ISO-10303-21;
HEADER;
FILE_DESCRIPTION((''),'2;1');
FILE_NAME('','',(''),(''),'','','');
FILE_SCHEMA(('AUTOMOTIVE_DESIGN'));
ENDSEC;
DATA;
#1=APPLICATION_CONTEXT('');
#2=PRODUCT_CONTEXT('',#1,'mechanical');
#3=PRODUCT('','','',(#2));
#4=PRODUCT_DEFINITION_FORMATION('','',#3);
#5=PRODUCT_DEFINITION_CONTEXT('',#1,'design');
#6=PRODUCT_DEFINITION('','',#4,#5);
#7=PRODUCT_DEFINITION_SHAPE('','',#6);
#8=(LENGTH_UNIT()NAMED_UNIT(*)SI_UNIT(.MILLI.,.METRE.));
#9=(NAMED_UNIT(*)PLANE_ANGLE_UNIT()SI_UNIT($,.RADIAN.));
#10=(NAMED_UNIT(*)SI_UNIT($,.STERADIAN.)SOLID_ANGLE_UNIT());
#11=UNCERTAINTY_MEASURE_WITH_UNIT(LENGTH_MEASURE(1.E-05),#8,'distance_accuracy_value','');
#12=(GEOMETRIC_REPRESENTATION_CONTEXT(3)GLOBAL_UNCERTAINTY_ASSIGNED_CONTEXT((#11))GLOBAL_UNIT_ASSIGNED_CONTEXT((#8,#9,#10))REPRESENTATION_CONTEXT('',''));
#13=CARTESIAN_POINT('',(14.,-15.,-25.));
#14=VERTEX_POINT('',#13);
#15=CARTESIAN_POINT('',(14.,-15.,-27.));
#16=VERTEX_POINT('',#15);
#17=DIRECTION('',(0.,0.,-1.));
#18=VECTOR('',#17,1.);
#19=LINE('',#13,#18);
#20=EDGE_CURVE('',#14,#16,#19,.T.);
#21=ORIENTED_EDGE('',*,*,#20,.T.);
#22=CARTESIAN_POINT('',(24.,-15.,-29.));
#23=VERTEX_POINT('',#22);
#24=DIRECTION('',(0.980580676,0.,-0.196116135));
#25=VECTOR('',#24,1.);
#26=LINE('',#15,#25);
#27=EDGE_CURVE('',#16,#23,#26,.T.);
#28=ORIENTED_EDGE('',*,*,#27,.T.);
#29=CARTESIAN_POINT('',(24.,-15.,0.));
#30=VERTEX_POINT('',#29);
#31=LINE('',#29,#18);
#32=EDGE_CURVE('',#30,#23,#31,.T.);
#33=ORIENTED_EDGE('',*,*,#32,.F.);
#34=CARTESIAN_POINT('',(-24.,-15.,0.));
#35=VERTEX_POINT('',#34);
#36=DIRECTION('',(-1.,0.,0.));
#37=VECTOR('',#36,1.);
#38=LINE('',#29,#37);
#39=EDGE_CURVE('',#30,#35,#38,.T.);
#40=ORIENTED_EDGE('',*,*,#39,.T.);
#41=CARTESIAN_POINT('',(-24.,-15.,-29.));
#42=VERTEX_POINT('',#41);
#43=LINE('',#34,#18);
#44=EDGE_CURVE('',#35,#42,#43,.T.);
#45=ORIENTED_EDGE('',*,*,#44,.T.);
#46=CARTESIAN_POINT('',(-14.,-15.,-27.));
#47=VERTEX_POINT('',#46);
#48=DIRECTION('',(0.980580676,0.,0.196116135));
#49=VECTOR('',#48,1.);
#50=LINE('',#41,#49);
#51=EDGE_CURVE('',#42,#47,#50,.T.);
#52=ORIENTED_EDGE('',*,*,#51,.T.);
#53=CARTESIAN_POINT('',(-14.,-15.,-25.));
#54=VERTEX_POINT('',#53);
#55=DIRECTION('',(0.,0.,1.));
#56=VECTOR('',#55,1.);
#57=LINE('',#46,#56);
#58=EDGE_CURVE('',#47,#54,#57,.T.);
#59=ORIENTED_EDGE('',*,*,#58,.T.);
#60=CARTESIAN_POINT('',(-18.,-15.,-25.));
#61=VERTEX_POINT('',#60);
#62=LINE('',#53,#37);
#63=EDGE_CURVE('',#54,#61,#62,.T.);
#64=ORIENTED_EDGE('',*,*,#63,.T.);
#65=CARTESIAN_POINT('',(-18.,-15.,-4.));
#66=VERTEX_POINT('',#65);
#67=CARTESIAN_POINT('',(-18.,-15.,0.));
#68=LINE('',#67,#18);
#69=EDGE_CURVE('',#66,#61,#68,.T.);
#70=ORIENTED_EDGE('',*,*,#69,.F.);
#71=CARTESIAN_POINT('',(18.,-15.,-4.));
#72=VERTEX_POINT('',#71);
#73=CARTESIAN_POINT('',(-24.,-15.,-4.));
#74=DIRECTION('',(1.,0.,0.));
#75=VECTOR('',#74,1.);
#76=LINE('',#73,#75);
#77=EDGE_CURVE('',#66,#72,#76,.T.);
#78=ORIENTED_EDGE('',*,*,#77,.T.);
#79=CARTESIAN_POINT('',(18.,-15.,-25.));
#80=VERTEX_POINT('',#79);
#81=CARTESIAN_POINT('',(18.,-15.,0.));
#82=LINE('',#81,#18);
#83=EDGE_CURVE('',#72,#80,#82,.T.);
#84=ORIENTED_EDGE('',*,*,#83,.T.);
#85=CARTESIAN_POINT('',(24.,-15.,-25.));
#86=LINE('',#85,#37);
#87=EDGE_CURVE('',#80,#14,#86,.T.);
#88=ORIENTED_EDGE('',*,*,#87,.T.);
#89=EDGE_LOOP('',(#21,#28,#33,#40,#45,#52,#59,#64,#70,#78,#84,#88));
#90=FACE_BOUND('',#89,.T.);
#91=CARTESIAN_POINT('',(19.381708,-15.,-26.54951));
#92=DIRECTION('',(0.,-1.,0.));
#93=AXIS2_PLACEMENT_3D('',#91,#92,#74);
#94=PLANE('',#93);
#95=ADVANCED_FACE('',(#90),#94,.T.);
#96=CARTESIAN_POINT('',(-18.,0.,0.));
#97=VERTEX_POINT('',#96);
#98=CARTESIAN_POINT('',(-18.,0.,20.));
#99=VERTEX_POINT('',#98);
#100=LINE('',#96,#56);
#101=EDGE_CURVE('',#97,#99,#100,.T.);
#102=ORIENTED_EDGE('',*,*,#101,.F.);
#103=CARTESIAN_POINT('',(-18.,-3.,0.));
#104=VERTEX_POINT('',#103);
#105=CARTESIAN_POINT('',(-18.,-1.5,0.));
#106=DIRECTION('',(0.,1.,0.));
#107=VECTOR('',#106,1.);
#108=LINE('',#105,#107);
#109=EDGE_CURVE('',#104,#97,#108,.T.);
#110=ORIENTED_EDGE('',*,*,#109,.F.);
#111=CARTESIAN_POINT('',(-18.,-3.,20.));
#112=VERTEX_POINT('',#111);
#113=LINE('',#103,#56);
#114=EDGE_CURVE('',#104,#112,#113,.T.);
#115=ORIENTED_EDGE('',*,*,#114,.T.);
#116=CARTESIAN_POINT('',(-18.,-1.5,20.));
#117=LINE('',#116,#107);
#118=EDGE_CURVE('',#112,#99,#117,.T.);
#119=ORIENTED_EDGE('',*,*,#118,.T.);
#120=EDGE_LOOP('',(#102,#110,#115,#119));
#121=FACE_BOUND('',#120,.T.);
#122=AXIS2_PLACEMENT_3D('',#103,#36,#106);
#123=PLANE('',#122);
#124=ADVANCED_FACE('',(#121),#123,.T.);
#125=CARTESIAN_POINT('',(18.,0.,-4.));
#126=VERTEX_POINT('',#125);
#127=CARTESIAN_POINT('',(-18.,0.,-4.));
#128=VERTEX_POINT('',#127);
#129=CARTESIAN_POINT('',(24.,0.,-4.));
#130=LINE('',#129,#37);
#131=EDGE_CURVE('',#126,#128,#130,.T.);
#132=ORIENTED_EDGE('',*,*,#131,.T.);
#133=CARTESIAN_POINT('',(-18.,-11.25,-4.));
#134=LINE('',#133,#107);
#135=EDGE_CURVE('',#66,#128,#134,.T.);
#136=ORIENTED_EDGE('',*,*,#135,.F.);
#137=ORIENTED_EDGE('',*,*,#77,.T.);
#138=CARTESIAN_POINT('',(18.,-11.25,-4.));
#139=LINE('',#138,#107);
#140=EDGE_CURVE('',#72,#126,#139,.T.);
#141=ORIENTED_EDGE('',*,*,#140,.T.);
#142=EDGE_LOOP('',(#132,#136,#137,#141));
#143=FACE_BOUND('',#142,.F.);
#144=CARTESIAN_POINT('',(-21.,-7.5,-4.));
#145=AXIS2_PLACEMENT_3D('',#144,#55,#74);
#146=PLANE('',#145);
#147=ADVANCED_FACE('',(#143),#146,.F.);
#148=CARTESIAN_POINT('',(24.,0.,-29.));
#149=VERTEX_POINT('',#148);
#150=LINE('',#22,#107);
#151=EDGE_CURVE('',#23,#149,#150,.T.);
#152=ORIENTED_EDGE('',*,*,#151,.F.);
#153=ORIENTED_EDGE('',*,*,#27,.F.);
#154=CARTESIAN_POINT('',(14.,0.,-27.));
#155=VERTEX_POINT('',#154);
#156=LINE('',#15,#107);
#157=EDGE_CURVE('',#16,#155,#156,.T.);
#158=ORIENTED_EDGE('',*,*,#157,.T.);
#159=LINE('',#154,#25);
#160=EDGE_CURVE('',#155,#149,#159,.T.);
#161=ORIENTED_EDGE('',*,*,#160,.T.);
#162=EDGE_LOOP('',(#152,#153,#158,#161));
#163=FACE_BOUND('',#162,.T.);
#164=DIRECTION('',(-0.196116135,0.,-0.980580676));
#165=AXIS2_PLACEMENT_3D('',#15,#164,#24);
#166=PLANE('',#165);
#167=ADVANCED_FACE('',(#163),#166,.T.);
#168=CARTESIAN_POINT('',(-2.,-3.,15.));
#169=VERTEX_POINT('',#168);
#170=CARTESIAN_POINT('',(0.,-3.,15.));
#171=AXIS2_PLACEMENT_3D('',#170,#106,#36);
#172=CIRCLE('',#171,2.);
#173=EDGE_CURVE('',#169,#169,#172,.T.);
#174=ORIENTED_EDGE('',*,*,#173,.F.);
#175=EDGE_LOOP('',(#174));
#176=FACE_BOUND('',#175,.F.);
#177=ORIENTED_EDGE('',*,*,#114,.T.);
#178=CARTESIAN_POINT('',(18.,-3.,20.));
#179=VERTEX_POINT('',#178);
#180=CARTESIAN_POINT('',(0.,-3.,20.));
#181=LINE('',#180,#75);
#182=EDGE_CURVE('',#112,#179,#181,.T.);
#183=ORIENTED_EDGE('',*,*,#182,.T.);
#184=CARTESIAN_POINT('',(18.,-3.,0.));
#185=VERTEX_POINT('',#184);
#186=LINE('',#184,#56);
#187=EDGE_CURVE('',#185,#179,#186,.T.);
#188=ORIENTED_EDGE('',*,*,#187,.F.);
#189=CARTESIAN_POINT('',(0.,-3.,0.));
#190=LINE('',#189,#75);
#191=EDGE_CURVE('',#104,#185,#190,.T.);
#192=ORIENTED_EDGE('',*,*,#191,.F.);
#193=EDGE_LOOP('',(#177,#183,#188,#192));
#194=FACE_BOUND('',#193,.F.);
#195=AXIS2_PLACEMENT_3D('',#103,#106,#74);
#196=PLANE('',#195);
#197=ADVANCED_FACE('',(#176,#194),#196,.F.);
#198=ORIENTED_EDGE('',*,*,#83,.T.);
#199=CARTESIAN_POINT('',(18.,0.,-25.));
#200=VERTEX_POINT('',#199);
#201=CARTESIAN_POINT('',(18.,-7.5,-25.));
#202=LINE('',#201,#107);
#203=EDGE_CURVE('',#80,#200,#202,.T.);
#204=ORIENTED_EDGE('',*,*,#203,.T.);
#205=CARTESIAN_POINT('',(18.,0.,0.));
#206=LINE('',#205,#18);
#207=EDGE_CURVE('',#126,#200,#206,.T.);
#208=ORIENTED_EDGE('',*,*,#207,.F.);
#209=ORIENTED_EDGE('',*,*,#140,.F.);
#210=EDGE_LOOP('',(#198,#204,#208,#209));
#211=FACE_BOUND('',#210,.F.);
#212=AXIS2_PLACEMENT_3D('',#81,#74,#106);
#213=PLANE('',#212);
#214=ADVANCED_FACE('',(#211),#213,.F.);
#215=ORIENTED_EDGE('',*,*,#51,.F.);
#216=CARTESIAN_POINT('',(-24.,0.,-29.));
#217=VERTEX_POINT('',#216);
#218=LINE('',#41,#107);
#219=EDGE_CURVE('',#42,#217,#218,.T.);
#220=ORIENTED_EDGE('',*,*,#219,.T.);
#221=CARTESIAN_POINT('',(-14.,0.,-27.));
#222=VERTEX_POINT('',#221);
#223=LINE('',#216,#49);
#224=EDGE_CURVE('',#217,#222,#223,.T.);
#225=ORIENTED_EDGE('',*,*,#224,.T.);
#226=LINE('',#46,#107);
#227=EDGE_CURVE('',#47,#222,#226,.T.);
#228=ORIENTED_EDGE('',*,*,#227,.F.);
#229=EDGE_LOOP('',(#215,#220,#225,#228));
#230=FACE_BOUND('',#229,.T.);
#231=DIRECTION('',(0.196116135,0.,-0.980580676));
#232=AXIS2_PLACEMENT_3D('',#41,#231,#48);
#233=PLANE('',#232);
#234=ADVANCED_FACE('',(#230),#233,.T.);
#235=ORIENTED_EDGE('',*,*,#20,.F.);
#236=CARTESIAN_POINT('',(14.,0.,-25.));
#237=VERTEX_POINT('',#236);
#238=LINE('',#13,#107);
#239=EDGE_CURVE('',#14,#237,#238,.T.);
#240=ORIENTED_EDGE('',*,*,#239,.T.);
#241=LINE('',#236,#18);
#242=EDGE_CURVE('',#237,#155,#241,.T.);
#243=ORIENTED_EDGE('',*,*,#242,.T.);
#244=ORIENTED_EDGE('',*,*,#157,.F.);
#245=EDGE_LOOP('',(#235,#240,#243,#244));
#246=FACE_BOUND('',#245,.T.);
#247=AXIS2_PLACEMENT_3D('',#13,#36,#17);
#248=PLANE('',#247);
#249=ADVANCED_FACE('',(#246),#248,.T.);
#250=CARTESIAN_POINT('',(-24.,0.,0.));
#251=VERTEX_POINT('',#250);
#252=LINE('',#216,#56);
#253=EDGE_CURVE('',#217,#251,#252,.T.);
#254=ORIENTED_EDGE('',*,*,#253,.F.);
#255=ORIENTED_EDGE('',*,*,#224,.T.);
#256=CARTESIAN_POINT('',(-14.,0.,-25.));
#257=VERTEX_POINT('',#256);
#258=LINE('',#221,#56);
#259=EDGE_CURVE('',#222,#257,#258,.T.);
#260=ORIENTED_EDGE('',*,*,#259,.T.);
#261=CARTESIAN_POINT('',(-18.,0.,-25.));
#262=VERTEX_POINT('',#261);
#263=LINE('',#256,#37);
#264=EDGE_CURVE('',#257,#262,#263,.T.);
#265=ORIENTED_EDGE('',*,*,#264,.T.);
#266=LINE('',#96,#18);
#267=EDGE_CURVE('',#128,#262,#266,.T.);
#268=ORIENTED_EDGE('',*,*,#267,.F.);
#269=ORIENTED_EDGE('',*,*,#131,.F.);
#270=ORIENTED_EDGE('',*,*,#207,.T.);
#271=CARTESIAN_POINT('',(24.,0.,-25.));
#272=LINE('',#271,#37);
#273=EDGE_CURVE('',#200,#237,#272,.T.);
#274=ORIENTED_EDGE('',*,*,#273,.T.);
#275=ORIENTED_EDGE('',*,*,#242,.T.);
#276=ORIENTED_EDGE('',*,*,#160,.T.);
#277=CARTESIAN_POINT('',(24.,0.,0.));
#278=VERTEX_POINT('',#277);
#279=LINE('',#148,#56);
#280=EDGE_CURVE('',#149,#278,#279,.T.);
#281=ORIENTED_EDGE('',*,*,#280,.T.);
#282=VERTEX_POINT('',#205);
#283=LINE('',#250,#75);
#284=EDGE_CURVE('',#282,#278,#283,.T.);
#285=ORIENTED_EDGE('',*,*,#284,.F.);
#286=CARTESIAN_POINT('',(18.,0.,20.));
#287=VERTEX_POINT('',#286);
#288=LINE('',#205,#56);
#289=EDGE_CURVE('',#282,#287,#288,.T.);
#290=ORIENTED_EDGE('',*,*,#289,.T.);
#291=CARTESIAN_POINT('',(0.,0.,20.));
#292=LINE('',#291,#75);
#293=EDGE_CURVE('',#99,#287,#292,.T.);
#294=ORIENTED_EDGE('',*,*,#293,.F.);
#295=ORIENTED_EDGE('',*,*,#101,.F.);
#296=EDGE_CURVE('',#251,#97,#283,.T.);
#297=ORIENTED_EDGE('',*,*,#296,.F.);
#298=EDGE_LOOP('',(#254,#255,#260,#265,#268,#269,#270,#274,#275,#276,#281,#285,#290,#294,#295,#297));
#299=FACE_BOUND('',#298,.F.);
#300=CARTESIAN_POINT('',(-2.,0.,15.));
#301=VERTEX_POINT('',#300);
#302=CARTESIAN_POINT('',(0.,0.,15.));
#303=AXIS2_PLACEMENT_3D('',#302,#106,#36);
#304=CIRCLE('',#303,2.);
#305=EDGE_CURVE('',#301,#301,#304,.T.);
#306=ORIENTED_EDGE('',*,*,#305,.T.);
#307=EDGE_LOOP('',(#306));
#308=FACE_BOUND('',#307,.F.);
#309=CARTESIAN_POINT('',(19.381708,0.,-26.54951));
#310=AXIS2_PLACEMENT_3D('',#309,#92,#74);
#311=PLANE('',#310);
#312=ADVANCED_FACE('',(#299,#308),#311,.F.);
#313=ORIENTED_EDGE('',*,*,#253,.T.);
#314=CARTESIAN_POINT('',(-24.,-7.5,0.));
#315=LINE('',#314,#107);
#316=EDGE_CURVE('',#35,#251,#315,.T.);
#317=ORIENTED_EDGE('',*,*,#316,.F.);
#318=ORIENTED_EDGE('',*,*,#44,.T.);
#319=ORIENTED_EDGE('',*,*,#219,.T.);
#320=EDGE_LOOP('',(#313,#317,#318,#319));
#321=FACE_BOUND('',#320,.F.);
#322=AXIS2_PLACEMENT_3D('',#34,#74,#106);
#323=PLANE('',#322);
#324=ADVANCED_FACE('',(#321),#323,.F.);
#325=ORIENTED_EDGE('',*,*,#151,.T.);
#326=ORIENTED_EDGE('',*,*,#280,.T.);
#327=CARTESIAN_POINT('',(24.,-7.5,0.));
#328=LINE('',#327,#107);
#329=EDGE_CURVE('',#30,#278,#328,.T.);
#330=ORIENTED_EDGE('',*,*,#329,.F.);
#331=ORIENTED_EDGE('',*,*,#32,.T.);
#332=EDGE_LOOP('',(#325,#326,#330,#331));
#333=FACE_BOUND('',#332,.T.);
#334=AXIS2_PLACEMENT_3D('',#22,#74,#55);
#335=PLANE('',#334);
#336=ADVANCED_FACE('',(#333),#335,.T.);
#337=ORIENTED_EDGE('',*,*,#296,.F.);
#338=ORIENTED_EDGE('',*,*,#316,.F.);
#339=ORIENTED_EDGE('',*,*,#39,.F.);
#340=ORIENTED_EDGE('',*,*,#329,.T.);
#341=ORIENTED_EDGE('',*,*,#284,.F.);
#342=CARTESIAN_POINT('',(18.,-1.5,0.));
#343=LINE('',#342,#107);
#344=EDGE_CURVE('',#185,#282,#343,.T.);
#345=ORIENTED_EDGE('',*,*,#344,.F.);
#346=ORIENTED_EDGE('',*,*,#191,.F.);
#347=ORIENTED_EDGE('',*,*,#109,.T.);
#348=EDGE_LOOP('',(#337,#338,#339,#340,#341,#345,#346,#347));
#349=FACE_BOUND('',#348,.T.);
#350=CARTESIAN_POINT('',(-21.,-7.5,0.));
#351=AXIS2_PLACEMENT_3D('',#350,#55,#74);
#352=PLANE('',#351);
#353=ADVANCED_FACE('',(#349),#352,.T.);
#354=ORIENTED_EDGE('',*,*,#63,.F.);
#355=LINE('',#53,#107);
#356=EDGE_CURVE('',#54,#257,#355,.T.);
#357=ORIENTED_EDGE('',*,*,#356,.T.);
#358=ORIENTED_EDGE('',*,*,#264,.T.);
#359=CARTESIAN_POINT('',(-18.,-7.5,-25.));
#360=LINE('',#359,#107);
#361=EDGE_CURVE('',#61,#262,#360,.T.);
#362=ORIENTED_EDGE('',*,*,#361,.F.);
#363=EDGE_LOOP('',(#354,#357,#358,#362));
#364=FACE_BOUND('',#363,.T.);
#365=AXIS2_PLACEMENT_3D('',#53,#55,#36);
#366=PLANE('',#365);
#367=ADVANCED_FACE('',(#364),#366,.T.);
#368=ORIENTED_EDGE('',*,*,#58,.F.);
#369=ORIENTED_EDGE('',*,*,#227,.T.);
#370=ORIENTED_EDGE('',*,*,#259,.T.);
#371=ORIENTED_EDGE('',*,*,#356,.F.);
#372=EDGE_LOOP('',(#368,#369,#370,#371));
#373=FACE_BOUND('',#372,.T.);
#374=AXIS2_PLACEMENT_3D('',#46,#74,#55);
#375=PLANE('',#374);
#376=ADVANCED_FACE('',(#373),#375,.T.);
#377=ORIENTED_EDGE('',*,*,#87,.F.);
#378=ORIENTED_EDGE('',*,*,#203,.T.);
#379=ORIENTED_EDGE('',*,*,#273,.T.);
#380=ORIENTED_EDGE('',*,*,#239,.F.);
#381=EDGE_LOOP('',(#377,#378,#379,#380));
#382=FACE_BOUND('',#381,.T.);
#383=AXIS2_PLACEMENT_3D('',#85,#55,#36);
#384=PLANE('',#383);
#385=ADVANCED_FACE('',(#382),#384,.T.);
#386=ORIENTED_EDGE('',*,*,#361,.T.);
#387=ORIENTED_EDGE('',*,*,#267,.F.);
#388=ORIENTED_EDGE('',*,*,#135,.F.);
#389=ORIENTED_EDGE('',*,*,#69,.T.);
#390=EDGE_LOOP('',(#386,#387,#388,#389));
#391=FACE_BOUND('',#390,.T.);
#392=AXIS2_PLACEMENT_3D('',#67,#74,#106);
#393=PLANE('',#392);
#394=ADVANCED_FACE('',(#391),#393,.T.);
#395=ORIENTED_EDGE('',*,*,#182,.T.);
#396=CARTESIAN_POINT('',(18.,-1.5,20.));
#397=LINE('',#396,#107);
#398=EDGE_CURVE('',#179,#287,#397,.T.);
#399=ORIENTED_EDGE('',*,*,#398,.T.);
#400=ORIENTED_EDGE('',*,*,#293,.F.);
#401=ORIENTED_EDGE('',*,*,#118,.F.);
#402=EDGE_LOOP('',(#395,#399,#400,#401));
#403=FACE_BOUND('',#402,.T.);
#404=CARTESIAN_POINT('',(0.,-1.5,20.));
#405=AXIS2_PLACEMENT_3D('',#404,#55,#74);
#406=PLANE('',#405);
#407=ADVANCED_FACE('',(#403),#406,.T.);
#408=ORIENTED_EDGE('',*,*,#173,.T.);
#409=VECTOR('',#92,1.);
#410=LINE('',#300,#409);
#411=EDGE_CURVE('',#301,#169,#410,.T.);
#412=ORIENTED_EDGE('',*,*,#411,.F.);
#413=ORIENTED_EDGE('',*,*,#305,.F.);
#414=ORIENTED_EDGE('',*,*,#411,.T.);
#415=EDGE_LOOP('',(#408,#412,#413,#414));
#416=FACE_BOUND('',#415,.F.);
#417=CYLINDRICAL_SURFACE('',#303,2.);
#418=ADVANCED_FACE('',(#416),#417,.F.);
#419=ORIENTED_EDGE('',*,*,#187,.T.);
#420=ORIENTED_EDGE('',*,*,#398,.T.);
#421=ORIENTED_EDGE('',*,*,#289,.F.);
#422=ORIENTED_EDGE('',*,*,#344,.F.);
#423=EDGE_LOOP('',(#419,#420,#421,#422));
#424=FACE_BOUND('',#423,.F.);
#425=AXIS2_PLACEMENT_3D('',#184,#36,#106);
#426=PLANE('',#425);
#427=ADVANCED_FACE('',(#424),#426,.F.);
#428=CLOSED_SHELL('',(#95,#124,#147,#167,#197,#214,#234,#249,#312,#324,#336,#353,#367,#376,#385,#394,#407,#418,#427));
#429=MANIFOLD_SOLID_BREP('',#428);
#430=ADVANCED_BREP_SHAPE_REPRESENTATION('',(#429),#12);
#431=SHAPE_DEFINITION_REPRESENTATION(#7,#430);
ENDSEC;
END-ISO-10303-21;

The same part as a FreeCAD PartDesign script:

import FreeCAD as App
import Part
import Sketcher

V = App.Vector

doc = App.newDocument("Part")
body = doc.addObject("PartDesign::Body", "Body")

# Sketch on XY plane
sketch1 = doc.addObject("Sketcher::SketchObject", "Sketch")
body.addObject(sketch1)
sketch1.AttachmentSupport = (doc.XY_Plane, [""])
sketch1.MapMode = "FlatFace"
sketch1.addGeometry([
    Part.LineSegment(V(-24, 0, 0), V(-24, -15, 0)),
    Part.LineSegment(V(-24, -15, 0), V(24, -15, 0)),
    Part.LineSegment(V(24, -15, 0), V(24, 0, 0)),
    Part.LineSegment(V(24, 0, 0), V(-24, 0, 0)),
], False)
sketch1.addConstraint([
    Sketcher.Constraint("Coincident", 0, 2, 1, 1),
    Sketcher.Constraint("Coincident", 1, 2, 2, 1),
    Sketcher.Constraint("Coincident", 2, 2, 3, 1),
    Sketcher.Constraint("Coincident", 3, 2, 0, 1),
    Sketcher.Constraint("Vertical", 0),
    Sketcher.Constraint("Horizontal", 1),
    Sketcher.Constraint("Vertical", 2),
    Sketcher.Constraint("Horizontal", 3),
    Sketcher.Constraint("Symmetric", 2, 2, 3, 2, -1, 1),
    Sketcher.Constraint("DistanceX", 1, 1, 1, 2, 48.0),
    Sketcher.Constraint("DistanceY", 0, 2, 0, 1, 15.0),
])
pad1 = doc.addObject("PartDesign::Pad", "Pad")
body.addObject(pad1)
pad1.Profile = sketch1
pad1.Length = 4
pad1.Reversed = True

# Sketch on XY plane
sketch2 = doc.addObject("Sketcher::SketchObject", "Sketch001")
body.addObject(sketch2)
sketch2.AttachmentSupport = (doc.XY_Plane, [""])
sketch2.MapMode = "FlatFace"
sketch2.addGeometry([
    Part.LineSegment(V(-24, 0, 0), V(-24, -15, 0)),  # 0
    Part.LineSegment(V(-24, -15, 0), V(-18, -15, 0)),  # 1
    Part.LineSegment(V(-18, -15, 0), V(-18, 0, 0)),  # 2
    Part.LineSegment(V(-18, 0, 0), V(-24, 0, 0)),  # 3
    Part.LineSegment(V(18, 0, 0), V(18, -15, 0)),  # 4
    Part.LineSegment(V(18, -15, 0), V(24, -15, 0)),  # 5
    Part.LineSegment(V(24, -15, 0), V(24, 0, 0)),  # 6
    Part.LineSegment(V(24, 0, 0), V(18, 0, 0)),  # 7
], False)
sketch2.addConstraint([
    Sketcher.Constraint("Coincident", 0, 2, 1, 1),
    Sketcher.Constraint("Coincident", 1, 2, 2, 1),
    Sketcher.Constraint("Coincident", 2, 2, 3, 1),
    Sketcher.Constraint("Coincident", 3, 2, 0, 1),
    Sketcher.Constraint("Coincident", 4, 2, 5, 1),
    Sketcher.Constraint("Coincident", 5, 2, 6, 1),
    Sketcher.Constraint("Coincident", 6, 2, 7, 1),
    Sketcher.Constraint("Coincident", 7, 2, 4, 1),
    Sketcher.Constraint("Vertical", 0),
    Sketcher.Constraint("Horizontal", 1),
    Sketcher.Constraint("Vertical", 2),
    Sketcher.Constraint("Horizontal", 3),
    Sketcher.Constraint("Vertical", 4),
    Sketcher.Constraint("Horizontal", 5),
    Sketcher.Constraint("Vertical", 6),
    Sketcher.Constraint("Horizontal", 7),
    Sketcher.Constraint("Symmetric", 3, 2, 6, 2, -1, 1),
    Sketcher.Constraint("Symmetric", 1, 2, 4, 2, -2),
    Sketcher.Constraint("PointOnObject", 2, 2, -1),
    Sketcher.Constraint("DistanceX", 1, 1, 1, 2, 6.0),
    Sketcher.Constraint("DistanceY", 0, 2, 0, 1, 15.0),
    Sketcher.Constraint("DistanceX", 0, 2, -1, 1, 24.0),
])
pad2 = doc.addObject("PartDesign::Pad", "Pad001")
body.addObject(pad2)
pad2.Profile = sketch2
pad2.Length = 25
pad2.Reversed = True

# Sketch on XZ plane
sketch3 = doc.addObject("Sketcher::SketchObject", "Sketch002")
body.addObject(sketch3)
sketch3.AttachmentSupport = (doc.XZ_Plane, [""])
sketch3.MapMode = "FlatFace"
sketch3.AttachmentOffset = App.Placement(V(0, 0, 15), App.Rotation())
sketch3.addGeometry([
    Part.LineSegment(V(24, -29, 0), V(24, -25, 0)),  # 0
    Part.LineSegment(V(24, -25, 0), V(14, -25, 0)),  # 1
    Part.LineSegment(V(14, -25, 0), V(14, -27, 0)),  # 2
    Part.LineSegment(V(14, -27, 0), V(24, -29, 0)),  # 3
    Part.LineSegment(V(-24, -25, 0), V(-24, -29, 0)),  # 4
    Part.LineSegment(V(-24, -29, 0), V(-14, -27, 0)),  # 5
    Part.LineSegment(V(-14, -27, 0), V(-14, -25, 0)),  # 6
    Part.LineSegment(V(-14, -25, 0), V(-24, -25, 0)),  # 7
], False)
sketch3.addConstraint([
    Sketcher.Constraint("Coincident", 0, 2, 1, 1),
    Sketcher.Constraint("Coincident", 1, 2, 2, 1),
    Sketcher.Constraint("Coincident", 2, 2, 3, 1),
    Sketcher.Constraint("Coincident", 3, 2, 0, 1),
    Sketcher.Constraint("Coincident", 4, 2, 5, 1),
    Sketcher.Constraint("Coincident", 5, 2, 6, 1),
    Sketcher.Constraint("Coincident", 6, 2, 7, 1),
    Sketcher.Constraint("Coincident", 7, 2, 4, 1),
    Sketcher.Constraint("Vertical", 0),
    Sketcher.Constraint("Horizontal", 1),
    Sketcher.Constraint("Vertical", 2),
    Sketcher.Constraint("Vertical", 4),
    Sketcher.Constraint("Vertical", 6),
    Sketcher.Constraint("Horizontal", 7),
    Sketcher.Constraint("Symmetric", 3, 2, 4, 2, -2),
    Sketcher.Constraint("Symmetric", 2, 2, 5, 2, -2),
    Sketcher.Constraint("Horizontal", 1, 2, 6, 2),
    Sketcher.Constraint("DistanceX", 1, 2, 1, 1, 10.0),
    Sketcher.Constraint("DistanceY", 0, 1, 0, 2, 4.0),
    Sketcher.Constraint("DistanceY", 2, 2, 2, 1, 2.0),
    Sketcher.Constraint("DistanceX", -1, 1, 0, 2, 24.0),
    Sketcher.Constraint("DistanceY", 0, 2, -1, 1, 25.0),
])
pad3 = doc.addObject("PartDesign::Pad", "Pad002")
body.addObject(pad3)
pad3.Profile = sketch3
pad3.Length = 15
pad3.Reversed = True

# Sketch on XY plane
sketch4 = doc.addObject("Sketcher::SketchObject", "Sketch003")
body.addObject(sketch4)
sketch4.AttachmentSupport = (doc.XY_Plane, [""])
sketch4.MapMode = "FlatFace"
sketch4.addGeometry([
    Part.LineSegment(V(-18, 0, 0), V(-18, -3, 0)),
    Part.LineSegment(V(-18, -3, 0), V(18, -3, 0)),
    Part.LineSegment(V(18, -3, 0), V(18, 0, 0)),
    Part.LineSegment(V(18, 0, 0), V(-18, 0, 0)),
], False)
sketch4.addConstraint([
    Sketcher.Constraint("Coincident", 0, 2, 1, 1),
    Sketcher.Constraint("Coincident", 1, 2, 2, 1),
    Sketcher.Constraint("Coincident", 2, 2, 3, 1),
    Sketcher.Constraint("Coincident", 3, 2, 0, 1),
    Sketcher.Constraint("Vertical", 0),
    Sketcher.Constraint("Horizontal", 1),
    Sketcher.Constraint("Vertical", 2),
    Sketcher.Constraint("Horizontal", 3),
    Sketcher.Constraint("Symmetric", 2, 2, 3, 2, -1, 1),
    Sketcher.Constraint("DistanceX", 1, 1, 1, 2, 36.0),
    Sketcher.Constraint("DistanceY", 0, 2, 0, 1, 3.0),
])
pad4 = doc.addObject("PartDesign::Pad", "Pad003")
body.addObject(pad4)
pad4.Profile = sketch4
pad4.Length = 20

# Sketch on XZ plane
sketch5 = doc.addObject("Sketcher::SketchObject", "Sketch004")
body.addObject(sketch5)
sketch5.AttachmentSupport = (doc.XZ_Plane, [""])
sketch5.MapMode = "FlatFace"
sketch5.addGeometry(Part.Circle(V(0, 15, 0), V(0, 0, 1), 2), False)
sketch5.addConstraint([
    Sketcher.Constraint("PointOnObject", 0, 3, -2),
    Sketcher.Constraint("Diameter", 0, 4.0),
    Sketcher.Constraint("DistanceY", -1, 1, 0, 3, 15.0),
])
pocket1 = doc.addObject("PartDesign::Pocket", "Pocket")
body.addObject(pocket1)
pocket1.Profile = sketch5
pocket1.Type = "ThroughAll"
pocket1.Reversed = True

doc.recompute()
